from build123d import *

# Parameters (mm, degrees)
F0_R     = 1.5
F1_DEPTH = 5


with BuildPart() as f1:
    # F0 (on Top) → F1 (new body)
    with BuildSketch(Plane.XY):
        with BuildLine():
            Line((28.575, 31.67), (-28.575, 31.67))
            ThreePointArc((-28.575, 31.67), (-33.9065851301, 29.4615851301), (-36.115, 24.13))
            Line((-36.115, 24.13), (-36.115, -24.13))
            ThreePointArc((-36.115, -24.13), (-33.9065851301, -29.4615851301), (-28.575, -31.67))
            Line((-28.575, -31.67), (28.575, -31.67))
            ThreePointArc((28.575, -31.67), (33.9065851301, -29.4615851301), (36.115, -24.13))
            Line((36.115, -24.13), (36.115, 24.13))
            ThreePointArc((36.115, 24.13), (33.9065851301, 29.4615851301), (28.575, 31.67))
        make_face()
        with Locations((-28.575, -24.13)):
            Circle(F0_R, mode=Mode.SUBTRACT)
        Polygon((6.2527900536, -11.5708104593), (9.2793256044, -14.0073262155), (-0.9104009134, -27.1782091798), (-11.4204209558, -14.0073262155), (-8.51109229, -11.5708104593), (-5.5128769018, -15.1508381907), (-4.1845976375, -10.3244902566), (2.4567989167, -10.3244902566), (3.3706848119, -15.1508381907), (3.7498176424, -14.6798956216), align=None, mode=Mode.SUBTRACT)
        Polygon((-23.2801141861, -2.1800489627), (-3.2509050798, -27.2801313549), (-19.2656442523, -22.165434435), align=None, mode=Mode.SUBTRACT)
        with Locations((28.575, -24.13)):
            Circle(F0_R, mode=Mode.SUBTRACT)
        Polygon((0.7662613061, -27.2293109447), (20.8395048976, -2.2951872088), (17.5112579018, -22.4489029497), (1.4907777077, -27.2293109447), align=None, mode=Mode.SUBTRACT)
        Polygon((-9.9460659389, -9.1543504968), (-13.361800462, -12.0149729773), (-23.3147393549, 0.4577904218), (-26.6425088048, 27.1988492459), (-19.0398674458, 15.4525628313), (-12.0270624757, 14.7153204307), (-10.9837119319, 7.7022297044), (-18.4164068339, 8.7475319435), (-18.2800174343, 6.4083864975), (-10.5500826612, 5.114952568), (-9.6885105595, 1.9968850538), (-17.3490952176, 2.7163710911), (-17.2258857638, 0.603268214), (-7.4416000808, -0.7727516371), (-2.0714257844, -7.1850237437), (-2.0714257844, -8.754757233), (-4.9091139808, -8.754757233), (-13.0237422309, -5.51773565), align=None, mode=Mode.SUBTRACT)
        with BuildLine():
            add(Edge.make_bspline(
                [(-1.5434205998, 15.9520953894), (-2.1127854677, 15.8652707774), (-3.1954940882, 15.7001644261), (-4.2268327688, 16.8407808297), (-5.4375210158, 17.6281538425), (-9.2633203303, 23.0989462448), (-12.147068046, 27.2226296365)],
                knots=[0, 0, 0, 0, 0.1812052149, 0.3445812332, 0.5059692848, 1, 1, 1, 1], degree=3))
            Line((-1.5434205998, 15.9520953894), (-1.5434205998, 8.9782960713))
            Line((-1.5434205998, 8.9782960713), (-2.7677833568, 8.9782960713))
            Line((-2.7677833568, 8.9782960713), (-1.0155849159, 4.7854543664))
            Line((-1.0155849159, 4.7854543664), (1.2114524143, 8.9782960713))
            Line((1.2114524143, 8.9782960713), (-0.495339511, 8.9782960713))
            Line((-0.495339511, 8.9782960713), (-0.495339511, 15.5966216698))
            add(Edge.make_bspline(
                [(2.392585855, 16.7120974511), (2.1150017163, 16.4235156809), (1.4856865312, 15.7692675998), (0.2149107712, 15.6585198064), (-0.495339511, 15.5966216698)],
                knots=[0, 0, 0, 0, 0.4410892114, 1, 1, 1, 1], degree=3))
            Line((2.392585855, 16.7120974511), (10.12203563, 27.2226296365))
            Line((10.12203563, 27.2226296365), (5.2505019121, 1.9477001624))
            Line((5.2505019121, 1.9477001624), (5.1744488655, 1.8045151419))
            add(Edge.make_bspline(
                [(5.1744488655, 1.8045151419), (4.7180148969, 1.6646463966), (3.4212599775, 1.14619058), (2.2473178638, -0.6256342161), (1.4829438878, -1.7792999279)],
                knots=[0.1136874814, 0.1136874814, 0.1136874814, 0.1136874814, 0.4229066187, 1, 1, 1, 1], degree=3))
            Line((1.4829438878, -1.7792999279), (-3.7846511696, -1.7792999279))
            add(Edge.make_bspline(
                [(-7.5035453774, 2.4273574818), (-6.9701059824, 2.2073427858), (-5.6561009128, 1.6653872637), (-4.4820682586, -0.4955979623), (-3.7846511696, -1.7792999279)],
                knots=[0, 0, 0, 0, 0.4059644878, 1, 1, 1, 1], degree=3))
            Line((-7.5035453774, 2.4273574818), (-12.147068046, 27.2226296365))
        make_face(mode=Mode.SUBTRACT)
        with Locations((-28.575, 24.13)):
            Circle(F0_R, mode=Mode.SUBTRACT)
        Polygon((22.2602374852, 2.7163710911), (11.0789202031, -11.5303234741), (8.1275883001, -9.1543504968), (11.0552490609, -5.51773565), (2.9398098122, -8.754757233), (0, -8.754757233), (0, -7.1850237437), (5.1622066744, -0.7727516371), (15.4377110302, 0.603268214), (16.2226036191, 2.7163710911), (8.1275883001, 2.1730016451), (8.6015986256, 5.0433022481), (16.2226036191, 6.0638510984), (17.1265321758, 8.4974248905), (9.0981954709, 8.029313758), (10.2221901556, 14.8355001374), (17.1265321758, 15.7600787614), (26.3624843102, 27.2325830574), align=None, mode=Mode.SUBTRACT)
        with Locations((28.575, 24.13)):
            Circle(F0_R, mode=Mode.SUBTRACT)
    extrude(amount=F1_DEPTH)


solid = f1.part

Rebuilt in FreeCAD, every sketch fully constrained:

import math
import FreeCAD as App
import Part
import Sketcher
from FreeCAD import Vector


def add_polygon(sketch, points):
    """Adds a closed chain of lines whose ends are joined by coincident constraints."""
    first, n = sketch.GeometryCount, len(points)
    for a, b in zip(points, points[1:] + points[:1]):
        sketch.addGeometry(Part.LineSegment(App.Vector(*a, 0), App.Vector(*b, 0)), False)
    for i in range(n):
        sketch.addConstraint(Sketcher.Constraint("Coincident", first + i, 2, first + (i + 1) % n, 1))

doc = App.newDocument("Part")
body = doc.addObject("PartDesign::Body", "Body")

# Sketch on XY plane
sketch1 = body.newObject("Sketcher::SketchObject", "Sketch")
sketch1.AttachmentSupport = (doc.getObject("XY_Plane"), [""])
sketch1.MapMode = "FlatFace"
sketch1.addGeometry(Part.LineSegment(Vector(28.575, 31.67, 0), Vector(-28.575, 31.67, 0)), False)  # 0
sketch1.addGeometry(Part.ArcOfCircle(Part.Circle(Vector(-28.575, 24.13, 0), Vector(0, 0, 1), 7.54), math.radians(90), math.radians(180)), False)  # 1
sketch1.addGeometry(Part.LineSegment(Vector(-36.115, 24.13, 0), Vector(-36.115, -24.13, 0)), False)  # 2
sketch1.addGeometry(Part.ArcOfCircle(Part.Circle(Vector(-28.575, -24.13, 0), Vector(0, 0, 1), 7.54), math.radians(180), math.radians(270)), False)  # 3
sketch1.addGeometry(Part.LineSegment(Vector(-28.575, -31.67, 0), Vector(28.575, -31.67, 0)), False)  # 4
sketch1.addGeometry(Part.ArcOfCircle(Part.Circle(Vector(28.575, -24.13, 0), Vector(0, 0, 1), 7.54), math.radians(-90), math.radians(0)), False)  # 5
sketch1.addGeometry(Part.LineSegment(Vector(36.115, -24.13, 0), Vector(36.115, 24.13, 0)), False)  # 6
sketch1.addGeometry(Part.ArcOfCircle(Part.Circle(Vector(28.575, 24.13, 0), Vector(0, 0, 1), 7.54), math.radians(0), math.radians(90)), False)  # 7
sketch1.addGeometry(Part.Circle(Vector(-28.575, -24.13, 0), Vector(0, 0, 1), 1.5), False)  # 8
add_polygon(sketch1, [(-19.265644, -22.165434), (-23.280114, -2.180049), (-3.250905, -27.280131)])  # lines 9-11
add_polygon(sketch1, [(3.749818, -14.679896), (6.25279, -11.57081), (9.279326, -14.007326), (-0.910401, -27.178209), (-11.420421, -14.007326), (-8.511092, -11.57081), (-5.512877, -15.150838), (-4.184598, -10.32449), (2.456799, -10.32449), (3.370685, -15.150838)])  # lines 12-21
add_polygon(sketch1, [(1.490778, -27.229311), (0.766261, -27.229311), (20.839505, -2.295187), (17.511258, -22.448903)])  # lines 22-25
sketch1.addGeometry(Part.Circle(Vector(28.575, -24.13, 0), Vector(0, 0, 1), 1.5), False)  # 26
add_polygon(sketch1, [(-13.023742, -5.517736), (-9.946066, -9.15435), (-13.3618, -12.014973), (-23.314739, 0.45779), (-26.642509, 27.198849), (-19.039867, 15.452563), (-12.027062, 14.71532), (-10.983712, 7.70223), (-18.416407, 8.747532), (-18.280017, 6.408386), (-10.550083, 5.114953), (-9.688511, 1.996885), (-17.349095, 2.716371), (-17.225886, 0.603268), (-7.4416, -0.772752), (-2.071426, -7.185024), (-2.071426, -8.754757), (-4.909114, -8.754757)])  # lines 27-44
sketch1.addGeometry(Part.BSplineCurve([Vector(-1.543421, 15.952095, 0), Vector(-2.112785, 15.865271, 0), Vector(-3.195494, 15.700164, 0), Vector(-4.226833, 16.840781, 0), Vector(-5.437521, 17.628154, 0), Vector(-9.26332, 23.098946, 0), Vector(-12.147068, 27.22263, 0)], [4, 1, 1, 1, 4], [0, 0.181205215, 0.344581233, 0.505969285, 1], False, 3, [1, 1, 1, 1, 1, 1, 1], False), False)  # 45
sketch1.addGeometry(Part.LineSegment(Vector(-1.543421, 15.952095, 0), Vector(-1.543421, 8.978296, 0)), False)  # 46
sketch1.addGeometry(Part.LineSegment(Vector(-1.543421, 8.978296, 0), Vector(-2.767783, 8.978296, 0)), False)  # 47
sketch1.addGeometry(Part.LineSegment(Vector(-2.767783, 8.978296, 0), Vector(-1.015585, 4.785454, 0)), False)  # 48
sketch1.addGeometry(Part.LineSegment(Vector(-1.015585, 4.785454, 0), Vector(1.211452, 8.978296, 0)), False)  # 49
sketch1.addGeometry(Part.LineSegment(Vector(1.211452, 8.978296, 0), Vector(-0.49534, 8.978296, 0)), False)  # 50
sketch1.addGeometry(Part.LineSegment(Vector(-0.49534, 8.978296, 0), Vector(-0.49534, 15.596622, 0)), False)  # 51
sketch1.addGeometry(Part.BSplineCurve([Vector(2.392586, 16.712097, 0), Vector(2.115002, 16.423516, 0), Vector(1.485687, 15.769268, 0), Vector(0.214911, 15.65852, 0), Vector(-0.49534, 15.596622, 0)], [4, 1, 4], [0, 0.441089211, 1], False, 3, [1, 1, 1, 1, 1], False), False)  # 52
sketch1.addGeometry(Part.LineSegment(Vector(2.392586, 16.712097, 0), Vector(10.122036, 27.22263, 0)), False)  # 53
sketch1.addGeometry(Part.LineSegment(Vector(10.122036, 27.22263, 0), Vector(5.250502, 1.9477, 0)), False)  # 54
sketch1.addGeometry(Part.LineSegment(Vector(5.250502, 1.9477, 0), Vector(5.174449, 1.804515, 0)), False)  # 55
sketch1.addGeometry(Part.BSplineCurve([Vector(5.174449, 1.804515, 0), Vector(4.718015, 1.664646, 0), Vector(3.42126, 1.146191, 0), Vector(2.247318, -0.625634, 0), Vector(1.482944, -1.7793, 0)], [4, 1, 4], [0.113687481, 0.422906619, 1], False, 3, [1, 1, 1, 1, 1], False), False)  # 56
sketch1.addGeometry(Part.LineSegment(Vector(1.482944, -1.7793, 0), Vector(-3.784651, -1.7793, 0)), False)  # 57
sketch1.addGeometry(Part.BSplineCurve([Vector(-7.503545, 2.427357, 0), Vector(-6.970106, 2.207343, 0), Vector(-5.656101, 1.665387, 0), Vector(-4.482068, -0.495598, 0), Vector(-3.784651, -1.7793, 0)], [4, 1, 4], [0, 0.405964488, 1], False, 3, [1, 1, 1, 1, 1], False), False)  # 58
sketch1.addGeometry(Part.LineSegment(Vector(-7.503545, 2.427357, 0), Vector(-12.147068, 27.22263, 0)), False)  # 59
sketch1.addGeometry(Part.Circle(Vector(-28.575, 24.13, 0), Vector(0, 0, 1), 1.5), False)  # 60
add_polygon(sketch1, [(26.362484, 27.232583), (22.260237, 2.716371), (11.07892, -11.530323), (8.127588, -9.15435), (11.055249, -5.517736), (2.93981, -8.754757), (0, -8.754757), (0, -7.185024), (5.162207, -0.772752), (15.437711, 0.603268), (16.222604, 2.716371), (8.127588, 2.173002), (8.601599, 5.043302), (16.222604, 6.063851), (17.126532, 8.497425), (9.098195, 8.029314), (10.22219, 14.8355), (17.126532, 15.760079)])  # lines 61-78
sketch1.addGeometry(Part.Circle(Vector(28.575, 24.13, 0), Vector(0, 0, 1), 1.5), False)  # 79
sketch1.addConstraint([
    Sketcher.Constraint("Block", 45),
    Sketcher.Constraint("Block", 52),
    Sketcher.Constraint("Block", 56),
    Sketcher.Constraint("Block", 58),
    Sketcher.Constraint("Tangent", 0, 2, 1, 1),
    Sketcher.Constraint("Tangent", 1, 2, 2, 1),
    Sketcher.Constraint("Tangent", 2, 2, 3, 1),
    Sketcher.Constraint("Tangent", 3, 2, 4, 1),
    Sketcher.Constraint("Tangent", 4, 2, 5, 1),
    Sketcher.Constraint("Tangent", 5, 2, 6, 1),
    Sketcher.Constraint("Tangent", 6, 2, 7, 1),
    Sketcher.Constraint("Tangent", 7, 2, 0, 1),
    Sketcher.Constraint("Coincident", 45, 1, 46, 1),
    Sketcher.Constraint("Coincident", 46, 2, 47, 1),
    Sketcher.Constraint("Coincident", 47, 2, 48, 1),
    Sketcher.Constraint("Coincident", 48, 2, 49, 1),
    Sketcher.Constraint("Coincident", 49, 2, 50, 1),
    Sketcher.Constraint("Coincident", 50, 2, 51, 1),
    Sketcher.Constraint("Coincident", 51, 2, 52, 2),
    Sketcher.Constraint("Coincident", 52, 1, 53, 1),
    Sketcher.Constraint("Coincident", 53, 2, 54, 1),
    Sketcher.Constraint("Coincident", 54, 2, 55, 1),
    Sketcher.Constraint("Coincident", 55, 2, 56, 1),
    Sketcher.Constraint("Coincident", 56, 2, 57, 1),
    Sketcher.Constraint("Coincident", 57, 2, 58, 2),
    Sketcher.Constraint("Coincident", 58, 1, 59, 1),
    Sketcher.Constraint("Coincident", 59, 2, 45, 2),
    Sketcher.Constraint("Horizontal", 0),
    Sketcher.Constraint("Vertical", 2),
    Sketcher.Constraint("Horizontal", 4),
    Sketcher.Constraint("Vertical", 6),
    Sketcher.Constraint("Horizontal", 19),
    Sketcher.Constraint("Horizontal", 22),
    Sketcher.Constraint("Vertical", 42),
    Sketcher.Constraint("Horizontal", 43),
    Sketcher.Constraint("Vertical", 46),
    Sketcher.Constraint("Horizontal", 47),
    Sketcher.Constraint("Horizontal", 50),
    Sketcher.Constraint("Vertical", 51),
    Sketcher.Constraint("Horizontal", 66),
    Sketcher.Constraint("Vertical", 67),
    Sketcher.Constraint("Coincident", 8, 3, 3, 3),
    Sketcher.Constraint("Coincident", 26, 3, 5, 3),
    Sketcher.Constraint("Coincident", 60, 3, 1, 3),
    Sketcher.Constraint("Coincident", 79, 3, 7, 3),
    Sketcher.Constraint("Equal", 1, 3),
    Sketcher.Constraint("Equal", 3, 5),
    Sketcher.Constraint("Equal", 5, 7),
    Sketcher.Constraint("Equal", 8, 26),
    Sketcher.Constraint("Equal", 26, 60),
    Sketcher.Constraint("Equal", 60, 79),
    Sketcher.Constraint("Symmetric", 1, 3, 5, 3, -1, 1),
    Sketcher.Constraint("PointOnObject", 66, 2, -2),
    Sketcher.Constraint("Perpendicular", 12, 13),
    Sketcher.Constraint("Parallel", 10, 15),
    Sketcher.Constraint("Perpendicular", 16, 17),
    Sketcher.Constraint("Perpendicular", 13, 21),
    Sketcher.Constraint("Parallel", 21, 23),
    Sketcher.Constraint("Perpendicular", 17, 28),
    Sketcher.Constraint("Parallel", 15, 29),
    Sketcher.Constraint("Parallel", 35, 39),
    Sketcher.Constraint("Parallel", 34, 40),
    Sketcher.Constraint("Perpendicular", 28, 41),
    Sketcher.Constraint("Parallel", 49, 55),
    Sketcher.Constraint("Perpendicular", 36, 61),
    Sketcher.Constraint("Perpendicular", 23, 63),
    Sketcher.Constraint("Perpendicular", 63, 64),
    Sketcher.Constraint("Parallel", 64, 68),
    Sketcher.Constraint("Parallel", 24, 72),
    Sketcher.Constraint("Parallel", 69, 73),
    Sketcher.Constraint("Parallel", 70, 74),
    Sketcher.Constraint("Perpendicular", 39, 75),
    Sketcher.Constraint("Parallel", 72, 76),
    Sketcher.Constraint("Parallel", 73, 77),
    Sketcher.Constraint("Parallel", 68, 78),
    Sketcher.Constraint("Horizontal", 13, 2, 15, 2),
    Sketcher.Constraint("Horizontal", 12, 2, 16, 2),
    Sketcher.Constraint("Horizontal", 17, 2, 20, 2),
    Sketcher.Constraint("Horizontal", 47, 2, 49, 2),
    Sketcher.Constraint("Horizontal", 53, 2, 59, 2),
    Sketcher.Constraint("Horizontal", 38, 2, 61, 2),
    Sketcher.Constraint("Horizontal", 27, 2, 63, 2),
    Sketcher.Constraint("Horizontal", 44, 2, 64, 2),
    Sketcher.Constraint("Horizontal", 43, 2, 65, 2),
    Sketcher.Constraint("Horizontal", 41, 2, 67, 2),
    Sketcher.Constraint("Horizontal", 40, 2, 68, 2),
    Sketcher.Constraint("Horizontal", 39, 2, 69, 2),
    Sketcher.Constraint("Horizontal", 61, 2, 70, 2),
    Sketcher.Constraint("Vertical", 63, 2, 71, 2),
    Sketcher.Constraint("Vertical", 70, 2, 73, 2),
    Sketcher.Constraint("Vertical", 74, 2, 77, 2),
    Sketcher.Constraint("Diameter", 8, 3.0),
    Sketcher.Constraint("Radius", 1, 7.54),
    Sketcher.Constraint("DistanceX", 0, 2, 0, 1, 57.15),
    Sketcher.Constraint("DistanceY", 2, 2, 2, 1, 48.26),
    Sketcher.Constraint("DistanceY", 46, 2, 46, 1, 6.973799),
    Sketcher.Constraint("DistanceY", -1, 1, 71, 2, 2.173002),
    Sketcher.Constraint("Distance", 12, 3.991401),
    Sketcher.Constraint("Distance", 36, 7.837402),
    Sketcher.Constraint("Distance", 62, 18.110499),
    Sketcher.Constraint("Distance", 65, 8.7372),
    Sketcher.Constraint("DistanceX", 43, 2, 43, 1, 2.837688),
    Sketcher.Constraint("DistanceX", 50, 2, 50, 1, 1.706792),
    Sketcher.Constraint("DistanceX", 66, 2, 66, 1, 2.93981),
    Sketcher.Constraint("DistanceX", 14, 2, -1, 1, 0.910401),
    Sketcher.Constraint("DistanceX", -1, 1, 19, 2, 2.456799),
    Sketcher.Constraint("DistanceX", 28, 2, -1, 1, 13.3618),
    Sketcher.Constraint("DistanceX", 40, 2, -1, 1, 7.4416),
    Sketcher.Constraint("DistanceX", -1, 1, 54, 2, 5.250502),
    Sketcher.Constraint("DistanceY", -1, 1, 54, 2, 1.9477),
    Sketcher.Constraint("DistanceX", -1, 1, 72, 2, 8.601599),
    Sketcher.Constraint("DistanceY", -1, 1, 76, 2, 14.8355),
    Sketcher.Constraint("Distance", 16, 3.794839),
    Sketcher.Constraint("Distance", 17, 4.669678),
    Sketcher.Constraint("Distance", 20, 4.91211),
    Sketcher.Constraint("Distance", 21, 0.60459),
    Sketcher.Constraint("Distance", 28, 4.455379),
    Sketcher.Constraint("Distance", 32, 7.051451),
    Sketcher.Constraint("Distance", 34, 7.505838),
    Sketcher.Constraint("Distance", 35, 2.343118),
    Sketcher.Constraint("Distance", 37, 3.234911),
    Sketcher.Constraint("Distance", 39, 2.116692),
    Sketcher.Constraint("Distance", 40, 9.880571),
    Sketcher.Constraint("Distance", 41, 8.363971),
    Sketcher.Constraint("Distance", 48, 4.54424),
    Sketcher.Constraint("Distance", 49, 4.747591),
    Sketcher.Constraint("Distance", 63, 3.788879),
    Sketcher.Constraint("Distance", 69, 10.367228),
    Sketcher.Constraint("Distance", 71, 8.113231),
    Sketcher.Constraint("Distance", 74, 2.596029),
    Sketcher.Constraint("DistanceX", 19, 1, 19, 2, 6.641397),
    Sketcher.Constraint("DistanceX", 22, 2, 22, 1, 0.724516),
    Sketcher.Constraint("DistanceY", 42, 2, 42, 1, 1.569733),
    Sketcher.Constraint("DistanceY", 9, 2, -1, 1, 2.180049),
    Sketcher.Constraint("DistanceY", 10, 2, -1, 1, 27.280131),
    Sketcher.Constraint("DistanceX", -1, 1, 12, 2, 6.25279),
    Sketcher.Constraint("DistanceY", 12, 2, -1, 1, 11.57081),
    Sketcher.Constraint("DistanceY", 14, 2, -1, 1, 27.178209),
    Sketcher.Constraint("DistanceX", 15, 2, -1, 1, 11.420421),
    Sketcher.Constraint("DistanceY", 17, 2, -1, 1, 15.150838),
    Sketcher.Constraint("DistanceX", -1, 1, 22, 2, 0.766261),
    Sketcher.Constraint("DistanceY", 22, 2, -1, 1, 27.229311),
    Sketcher.Constraint("DistanceY", 27, 2, -1, 1, 9.15435),
    Sketcher.Constraint("DistanceX", 29, 2, -1, 1, 23.314739),
    Sketcher.Constraint("DistanceX", 30, 2, -1, 1, 26.642509),
    Sketcher.Constraint("DistanceY", -1, 1, 30, 2, 27.198849),
    Sketcher.Constraint("DistanceY", -1, 1, 32, 2, 14.71532),
    Sketcher.Constraint("DistanceX", 33, 2, -1, 1, 10.983712),
    Sketcher.Constraint("DistanceY", -1, 1, 33, 2, 7.70223),
    Sketcher.Constraint("DistanceY", -1, 1, 34, 2, 8.747532),
    Sketcher.Constraint("DistanceX", 37, 2, -1, 1, 9.688511),
    Sketcher.Constraint("DistanceY", -1, 1, 38, 2, 2.716371),
    Sketcher.Constraint("DistanceY", -1, 1, 39, 2, 0.603268),
    Sketcher.Constraint("DistanceX", -1, 1, 62, 2, 11.07892),
    Sketcher.Constraint("DistanceY", -1, 1, 73, 2, 6.063851),
    Sketcher.Constraint("DistanceX", -1, 1, 76, 2, 10.22219),
    Sketcher.Constraint("Distance", 9, 20.384592),
    Sketcher.Constraint("Distance", 11, 16.811662),
    Sketcher.Constraint("Distance", 23, 32.010086),
    Sketcher.Constraint("Distance", 24, 20.426686),
    Sketcher.Constraint("Distance", 27, 4.764143),
    Sketcher.Constraint("Distance", 31, 13.991976),
    Sketcher.Constraint("Distance", 33, 7.090277),
    Sketcher.Constraint("Distance", 38, 7.694298),
    Sketcher.Constraint("Distance", 53, 13.046673),
    Sketcher.Constraint("DistanceX", 9, 2, -1, 1, 23.280114),
])
pad1 = body.newObject("PartDesign::Pad", "Pad")
pad1.Profile = sketch1
pad1.Length = 5

doc.recompute()
